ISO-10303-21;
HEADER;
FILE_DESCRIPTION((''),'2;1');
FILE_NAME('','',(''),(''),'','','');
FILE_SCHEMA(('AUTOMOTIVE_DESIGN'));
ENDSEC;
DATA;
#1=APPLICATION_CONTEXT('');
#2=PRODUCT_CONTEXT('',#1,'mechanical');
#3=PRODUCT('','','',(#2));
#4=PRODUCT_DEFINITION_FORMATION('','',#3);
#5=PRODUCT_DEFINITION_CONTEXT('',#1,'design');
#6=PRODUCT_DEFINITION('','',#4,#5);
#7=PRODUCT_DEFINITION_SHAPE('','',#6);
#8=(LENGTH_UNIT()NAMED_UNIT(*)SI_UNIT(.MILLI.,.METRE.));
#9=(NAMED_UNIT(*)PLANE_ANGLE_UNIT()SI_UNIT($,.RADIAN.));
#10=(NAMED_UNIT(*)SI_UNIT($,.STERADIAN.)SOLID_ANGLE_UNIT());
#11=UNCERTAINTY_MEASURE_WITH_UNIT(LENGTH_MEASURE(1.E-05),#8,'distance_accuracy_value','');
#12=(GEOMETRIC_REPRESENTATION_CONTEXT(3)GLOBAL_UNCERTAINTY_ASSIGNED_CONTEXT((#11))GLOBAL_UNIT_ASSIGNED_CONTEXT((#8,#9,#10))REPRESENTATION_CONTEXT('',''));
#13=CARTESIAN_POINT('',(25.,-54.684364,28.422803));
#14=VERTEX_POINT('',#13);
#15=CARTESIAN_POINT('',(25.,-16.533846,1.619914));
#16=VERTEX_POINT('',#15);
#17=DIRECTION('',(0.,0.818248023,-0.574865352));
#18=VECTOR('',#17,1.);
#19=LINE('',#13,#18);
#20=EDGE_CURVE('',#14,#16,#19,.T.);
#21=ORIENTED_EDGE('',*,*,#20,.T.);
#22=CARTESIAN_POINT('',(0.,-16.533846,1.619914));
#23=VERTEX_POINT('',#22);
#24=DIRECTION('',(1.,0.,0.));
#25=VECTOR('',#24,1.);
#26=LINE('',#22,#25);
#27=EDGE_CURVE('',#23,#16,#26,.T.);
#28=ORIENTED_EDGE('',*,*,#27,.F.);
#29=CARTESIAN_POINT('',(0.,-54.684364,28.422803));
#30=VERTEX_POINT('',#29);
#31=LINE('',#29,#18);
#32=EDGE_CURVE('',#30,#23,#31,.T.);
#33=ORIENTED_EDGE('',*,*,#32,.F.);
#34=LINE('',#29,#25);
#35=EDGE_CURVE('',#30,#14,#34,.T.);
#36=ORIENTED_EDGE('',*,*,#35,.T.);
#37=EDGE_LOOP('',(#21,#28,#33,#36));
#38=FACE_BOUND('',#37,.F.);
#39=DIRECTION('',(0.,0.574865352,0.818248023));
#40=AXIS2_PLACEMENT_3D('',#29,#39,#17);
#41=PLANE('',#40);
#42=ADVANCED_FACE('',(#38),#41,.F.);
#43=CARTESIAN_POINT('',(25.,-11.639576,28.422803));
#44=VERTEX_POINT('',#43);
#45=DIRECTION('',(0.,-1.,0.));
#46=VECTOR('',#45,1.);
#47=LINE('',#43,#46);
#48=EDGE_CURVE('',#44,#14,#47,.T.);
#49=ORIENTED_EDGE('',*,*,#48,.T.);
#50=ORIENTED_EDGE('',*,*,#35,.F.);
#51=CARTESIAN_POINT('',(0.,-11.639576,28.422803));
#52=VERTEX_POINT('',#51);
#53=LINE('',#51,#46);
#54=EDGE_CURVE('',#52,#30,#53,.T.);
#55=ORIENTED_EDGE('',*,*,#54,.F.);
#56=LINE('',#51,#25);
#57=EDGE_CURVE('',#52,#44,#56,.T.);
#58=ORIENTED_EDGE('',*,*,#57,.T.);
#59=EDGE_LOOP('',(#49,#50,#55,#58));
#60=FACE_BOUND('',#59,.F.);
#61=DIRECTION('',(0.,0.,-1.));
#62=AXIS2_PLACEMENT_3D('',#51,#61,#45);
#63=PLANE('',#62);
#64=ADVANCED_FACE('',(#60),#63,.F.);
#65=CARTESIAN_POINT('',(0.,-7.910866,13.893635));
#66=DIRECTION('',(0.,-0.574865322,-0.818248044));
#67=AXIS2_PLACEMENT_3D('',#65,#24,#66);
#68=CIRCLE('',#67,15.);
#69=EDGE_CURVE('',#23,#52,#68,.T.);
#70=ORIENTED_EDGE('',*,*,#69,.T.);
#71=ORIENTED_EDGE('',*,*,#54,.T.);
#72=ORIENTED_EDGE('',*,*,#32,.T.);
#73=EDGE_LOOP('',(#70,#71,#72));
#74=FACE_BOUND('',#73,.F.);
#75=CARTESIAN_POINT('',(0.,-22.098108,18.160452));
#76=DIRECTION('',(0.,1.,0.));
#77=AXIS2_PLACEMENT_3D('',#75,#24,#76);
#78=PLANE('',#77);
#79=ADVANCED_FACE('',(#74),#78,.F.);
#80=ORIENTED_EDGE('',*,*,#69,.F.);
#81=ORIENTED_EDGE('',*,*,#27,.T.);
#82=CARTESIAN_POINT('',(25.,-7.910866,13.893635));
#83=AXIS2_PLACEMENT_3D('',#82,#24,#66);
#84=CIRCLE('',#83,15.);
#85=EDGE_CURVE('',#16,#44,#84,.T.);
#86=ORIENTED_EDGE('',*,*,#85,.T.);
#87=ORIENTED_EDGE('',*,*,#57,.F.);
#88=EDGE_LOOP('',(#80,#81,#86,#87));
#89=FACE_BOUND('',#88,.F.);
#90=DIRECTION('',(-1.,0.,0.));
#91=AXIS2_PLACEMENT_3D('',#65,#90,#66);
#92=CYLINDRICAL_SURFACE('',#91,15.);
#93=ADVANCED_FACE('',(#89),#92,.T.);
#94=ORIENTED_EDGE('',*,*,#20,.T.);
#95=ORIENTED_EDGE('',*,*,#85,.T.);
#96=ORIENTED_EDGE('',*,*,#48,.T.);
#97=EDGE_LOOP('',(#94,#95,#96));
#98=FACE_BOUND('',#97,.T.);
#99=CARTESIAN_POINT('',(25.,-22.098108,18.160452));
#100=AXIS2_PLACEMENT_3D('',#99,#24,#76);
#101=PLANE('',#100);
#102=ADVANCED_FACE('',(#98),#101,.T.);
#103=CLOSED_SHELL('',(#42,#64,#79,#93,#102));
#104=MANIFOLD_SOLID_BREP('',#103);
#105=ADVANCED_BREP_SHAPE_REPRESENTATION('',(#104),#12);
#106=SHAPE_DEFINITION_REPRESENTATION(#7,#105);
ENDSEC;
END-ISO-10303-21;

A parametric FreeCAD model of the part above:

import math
import FreeCAD as App
import Part
import Sketcher

V = App.Vector
Q = App.Units.Quantity

doc = App.newDocument("Part")
body = doc.addObject("PartDesign::Body", "Body")

# Sketch on YZ plane
sketch1 = doc.addObject("Sketcher::SketchObject", "Sketch")
body.addObject(sketch1)
sketch1.AttachmentSupport = (doc.YZ_Plane, [""])
sketch1.MapMode = "FlatFace"
sketch1.addGeometry([
    Part.LineSegment(V(-55, 28, 0), V(-17, 2, 0)),
    Part.ArcOfCircle(Part.Circle(V(-8, 14, 0), V(0, 0, 1), 15), math.radians(-125), math.radians(104)),
    Part.LineSegment(V(-12, 28, 0), V(-55, 28, 0)),
], False)
sketch1.addConstraint([
    Sketcher.Constraint("Tangent", 0, 2, 1, 1),
    Sketcher.Constraint("Coincident", 1, 2, 2, 1),
    Sketcher.Constraint("Coincident", 2, 2, 0, 1),
    Sketcher.Constraint("Horizontal", 2),
    Sketcher.Constraint("Radius", 1, Q("15 mm")),
    Sketcher.Constraint("DistanceX", 2, 2, 2, 1, Q("43.044788 mm")),
    Sketcher.Constraint("Distance", 0, Q("46.624638 mm")),
    Sketcher.Constraint("DistanceX", 1, 3, -1, 1, Q("7.910866 mm")),
    Sketcher.Constraint("DistanceY", -1, 1, 1, 3, Q("13.893635 mm")),
])
pad1 = doc.addObject("PartDesign::Pad", "Pad")
body.addObject(pad1)
pad1.Profile = sketch1
pad1.Length = 25

doc.recompute()
